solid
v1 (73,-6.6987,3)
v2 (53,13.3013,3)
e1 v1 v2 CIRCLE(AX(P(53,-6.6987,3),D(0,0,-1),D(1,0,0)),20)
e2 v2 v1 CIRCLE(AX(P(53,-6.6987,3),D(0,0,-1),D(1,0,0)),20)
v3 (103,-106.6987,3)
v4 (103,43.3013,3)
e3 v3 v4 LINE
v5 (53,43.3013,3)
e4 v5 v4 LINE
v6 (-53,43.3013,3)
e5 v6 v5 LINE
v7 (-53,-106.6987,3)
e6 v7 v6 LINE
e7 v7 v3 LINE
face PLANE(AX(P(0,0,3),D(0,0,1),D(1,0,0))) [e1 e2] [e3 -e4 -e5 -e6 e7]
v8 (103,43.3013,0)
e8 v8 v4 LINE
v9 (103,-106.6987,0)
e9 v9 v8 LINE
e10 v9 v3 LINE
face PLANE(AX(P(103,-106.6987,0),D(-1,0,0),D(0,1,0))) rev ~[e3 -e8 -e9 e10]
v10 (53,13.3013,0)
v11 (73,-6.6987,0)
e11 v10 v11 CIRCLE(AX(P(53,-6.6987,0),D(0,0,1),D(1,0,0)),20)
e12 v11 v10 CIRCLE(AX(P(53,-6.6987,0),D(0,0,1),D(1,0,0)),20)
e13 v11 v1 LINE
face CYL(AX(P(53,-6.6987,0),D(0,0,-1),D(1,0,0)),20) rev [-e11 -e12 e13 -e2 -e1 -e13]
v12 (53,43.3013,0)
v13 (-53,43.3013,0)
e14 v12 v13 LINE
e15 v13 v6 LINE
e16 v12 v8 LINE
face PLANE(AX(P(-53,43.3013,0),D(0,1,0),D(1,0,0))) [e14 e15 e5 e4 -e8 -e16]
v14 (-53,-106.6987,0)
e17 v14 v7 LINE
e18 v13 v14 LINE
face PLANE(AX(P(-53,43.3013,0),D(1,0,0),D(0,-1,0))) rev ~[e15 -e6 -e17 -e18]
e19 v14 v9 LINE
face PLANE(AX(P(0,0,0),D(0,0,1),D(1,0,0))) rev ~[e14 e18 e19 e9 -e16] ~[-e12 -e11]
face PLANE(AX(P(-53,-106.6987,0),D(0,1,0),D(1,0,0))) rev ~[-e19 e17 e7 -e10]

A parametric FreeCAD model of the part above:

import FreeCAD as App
import Part
import Sketcher
from FreeCAD import Vector
Q = App.Units.Quantity


def add_polygon(sketch, points):
    """Adds a closed chain of lines whose ends are joined by coincident constraints."""
    first, n = sketch.GeometryCount, len(points)
    for a, b in zip(points, points[1:] + points[:1]):
        sketch.addGeometry(Part.LineSegment(App.Vector(*a, 0), App.Vector(*b, 0)), False)
    for i in range(n):
        sketch.addConstraint(Sketcher.Constraint("Coincident", first + i, 2, first + (i + 1) % n, 1))

doc = App.newDocument("Part")
body = doc.addObject("PartDesign::Body", "Body")

sketch1 = doc.addObject("Sketcher::SketchObject", "Sketch")
body.addObject(sketch1)
sketch1.AttachmentSupport = (doc.XY_Plane, [""])
sketch1.MapMode = "FlatFace"
add_polygon(sketch1, [(-53, 43), (-53, -107), (103, -107), (103, 43), (53, 43)])
sketch1.addConstraint(Sketcher.Constraint("Vertical", 0))
sketch1.addConstraint(Sketcher.Constraint("Horizontal", 1))
sketch1.addConstraint(Sketcher.Constraint("Vertical", 2))
sketch1.addConstraint(Sketcher.Constraint("Horizontal", 3))
sketch1.addConstraint(Sketcher.Constraint("Horizontal", 4))
sketch1.addConstraint(Sketcher.Constraint("DistanceX", 1, 1, 1, 2, Q("156 mm")))
sketch1.addConstraint(Sketcher.Constraint("DistanceX", 3, 2, 3, 1, Q("50 mm")))
sketch1.addConstraint(Sketcher.Constraint("DistanceY", 0, 2, 0, 1, Q("150 mm")))
sketch1.addConstraint(Sketcher.Constraint("DistanceX", 0, 2, -1, 1, Q("53 mm")))
sketch1.addConstraint(Sketcher.Constraint("DistanceY", 0, 2, -1, 1, Q("106.6987 mm")))
pad1 = doc.addObject("PartDesign::Pad", "Pad")
body.addObject(pad1)
pad1.Profile = sketch1
pad1.Length = 3

sketch2 = doc.addObject("Sketcher::SketchObject", "Sketch001")
body.addObject(sketch2)
sketch2.AttachmentSupport = (doc.XY_Plane, [""])
sketch2.MapMode = "FlatFace"
sketch2.addGeometry(Part.Circle(Vector(53, -7, 0), Vector(0, 0, 1), 20), False)
sketch2.addConstraint(Sketcher.Constraint("Diameter", 0, Q("40 mm")))
sketch2.addConstraint(Sketcher.Constraint("DistanceX", -1, 1, 0, 3, Q("53 mm")))
sketch2.addConstraint(Sketcher.Constraint("DistanceY", 0, 3, -1, 1, Q("6.6987 mm")))
pocket1 = doc.addObject("PartDesign::Pocket", "Pocket")
body.addObject(pocket1)
pocket1.Profile = sketch2
pocket1.Type = "ThroughAll"
pocket1.Reversed = True

doc.recompute()
